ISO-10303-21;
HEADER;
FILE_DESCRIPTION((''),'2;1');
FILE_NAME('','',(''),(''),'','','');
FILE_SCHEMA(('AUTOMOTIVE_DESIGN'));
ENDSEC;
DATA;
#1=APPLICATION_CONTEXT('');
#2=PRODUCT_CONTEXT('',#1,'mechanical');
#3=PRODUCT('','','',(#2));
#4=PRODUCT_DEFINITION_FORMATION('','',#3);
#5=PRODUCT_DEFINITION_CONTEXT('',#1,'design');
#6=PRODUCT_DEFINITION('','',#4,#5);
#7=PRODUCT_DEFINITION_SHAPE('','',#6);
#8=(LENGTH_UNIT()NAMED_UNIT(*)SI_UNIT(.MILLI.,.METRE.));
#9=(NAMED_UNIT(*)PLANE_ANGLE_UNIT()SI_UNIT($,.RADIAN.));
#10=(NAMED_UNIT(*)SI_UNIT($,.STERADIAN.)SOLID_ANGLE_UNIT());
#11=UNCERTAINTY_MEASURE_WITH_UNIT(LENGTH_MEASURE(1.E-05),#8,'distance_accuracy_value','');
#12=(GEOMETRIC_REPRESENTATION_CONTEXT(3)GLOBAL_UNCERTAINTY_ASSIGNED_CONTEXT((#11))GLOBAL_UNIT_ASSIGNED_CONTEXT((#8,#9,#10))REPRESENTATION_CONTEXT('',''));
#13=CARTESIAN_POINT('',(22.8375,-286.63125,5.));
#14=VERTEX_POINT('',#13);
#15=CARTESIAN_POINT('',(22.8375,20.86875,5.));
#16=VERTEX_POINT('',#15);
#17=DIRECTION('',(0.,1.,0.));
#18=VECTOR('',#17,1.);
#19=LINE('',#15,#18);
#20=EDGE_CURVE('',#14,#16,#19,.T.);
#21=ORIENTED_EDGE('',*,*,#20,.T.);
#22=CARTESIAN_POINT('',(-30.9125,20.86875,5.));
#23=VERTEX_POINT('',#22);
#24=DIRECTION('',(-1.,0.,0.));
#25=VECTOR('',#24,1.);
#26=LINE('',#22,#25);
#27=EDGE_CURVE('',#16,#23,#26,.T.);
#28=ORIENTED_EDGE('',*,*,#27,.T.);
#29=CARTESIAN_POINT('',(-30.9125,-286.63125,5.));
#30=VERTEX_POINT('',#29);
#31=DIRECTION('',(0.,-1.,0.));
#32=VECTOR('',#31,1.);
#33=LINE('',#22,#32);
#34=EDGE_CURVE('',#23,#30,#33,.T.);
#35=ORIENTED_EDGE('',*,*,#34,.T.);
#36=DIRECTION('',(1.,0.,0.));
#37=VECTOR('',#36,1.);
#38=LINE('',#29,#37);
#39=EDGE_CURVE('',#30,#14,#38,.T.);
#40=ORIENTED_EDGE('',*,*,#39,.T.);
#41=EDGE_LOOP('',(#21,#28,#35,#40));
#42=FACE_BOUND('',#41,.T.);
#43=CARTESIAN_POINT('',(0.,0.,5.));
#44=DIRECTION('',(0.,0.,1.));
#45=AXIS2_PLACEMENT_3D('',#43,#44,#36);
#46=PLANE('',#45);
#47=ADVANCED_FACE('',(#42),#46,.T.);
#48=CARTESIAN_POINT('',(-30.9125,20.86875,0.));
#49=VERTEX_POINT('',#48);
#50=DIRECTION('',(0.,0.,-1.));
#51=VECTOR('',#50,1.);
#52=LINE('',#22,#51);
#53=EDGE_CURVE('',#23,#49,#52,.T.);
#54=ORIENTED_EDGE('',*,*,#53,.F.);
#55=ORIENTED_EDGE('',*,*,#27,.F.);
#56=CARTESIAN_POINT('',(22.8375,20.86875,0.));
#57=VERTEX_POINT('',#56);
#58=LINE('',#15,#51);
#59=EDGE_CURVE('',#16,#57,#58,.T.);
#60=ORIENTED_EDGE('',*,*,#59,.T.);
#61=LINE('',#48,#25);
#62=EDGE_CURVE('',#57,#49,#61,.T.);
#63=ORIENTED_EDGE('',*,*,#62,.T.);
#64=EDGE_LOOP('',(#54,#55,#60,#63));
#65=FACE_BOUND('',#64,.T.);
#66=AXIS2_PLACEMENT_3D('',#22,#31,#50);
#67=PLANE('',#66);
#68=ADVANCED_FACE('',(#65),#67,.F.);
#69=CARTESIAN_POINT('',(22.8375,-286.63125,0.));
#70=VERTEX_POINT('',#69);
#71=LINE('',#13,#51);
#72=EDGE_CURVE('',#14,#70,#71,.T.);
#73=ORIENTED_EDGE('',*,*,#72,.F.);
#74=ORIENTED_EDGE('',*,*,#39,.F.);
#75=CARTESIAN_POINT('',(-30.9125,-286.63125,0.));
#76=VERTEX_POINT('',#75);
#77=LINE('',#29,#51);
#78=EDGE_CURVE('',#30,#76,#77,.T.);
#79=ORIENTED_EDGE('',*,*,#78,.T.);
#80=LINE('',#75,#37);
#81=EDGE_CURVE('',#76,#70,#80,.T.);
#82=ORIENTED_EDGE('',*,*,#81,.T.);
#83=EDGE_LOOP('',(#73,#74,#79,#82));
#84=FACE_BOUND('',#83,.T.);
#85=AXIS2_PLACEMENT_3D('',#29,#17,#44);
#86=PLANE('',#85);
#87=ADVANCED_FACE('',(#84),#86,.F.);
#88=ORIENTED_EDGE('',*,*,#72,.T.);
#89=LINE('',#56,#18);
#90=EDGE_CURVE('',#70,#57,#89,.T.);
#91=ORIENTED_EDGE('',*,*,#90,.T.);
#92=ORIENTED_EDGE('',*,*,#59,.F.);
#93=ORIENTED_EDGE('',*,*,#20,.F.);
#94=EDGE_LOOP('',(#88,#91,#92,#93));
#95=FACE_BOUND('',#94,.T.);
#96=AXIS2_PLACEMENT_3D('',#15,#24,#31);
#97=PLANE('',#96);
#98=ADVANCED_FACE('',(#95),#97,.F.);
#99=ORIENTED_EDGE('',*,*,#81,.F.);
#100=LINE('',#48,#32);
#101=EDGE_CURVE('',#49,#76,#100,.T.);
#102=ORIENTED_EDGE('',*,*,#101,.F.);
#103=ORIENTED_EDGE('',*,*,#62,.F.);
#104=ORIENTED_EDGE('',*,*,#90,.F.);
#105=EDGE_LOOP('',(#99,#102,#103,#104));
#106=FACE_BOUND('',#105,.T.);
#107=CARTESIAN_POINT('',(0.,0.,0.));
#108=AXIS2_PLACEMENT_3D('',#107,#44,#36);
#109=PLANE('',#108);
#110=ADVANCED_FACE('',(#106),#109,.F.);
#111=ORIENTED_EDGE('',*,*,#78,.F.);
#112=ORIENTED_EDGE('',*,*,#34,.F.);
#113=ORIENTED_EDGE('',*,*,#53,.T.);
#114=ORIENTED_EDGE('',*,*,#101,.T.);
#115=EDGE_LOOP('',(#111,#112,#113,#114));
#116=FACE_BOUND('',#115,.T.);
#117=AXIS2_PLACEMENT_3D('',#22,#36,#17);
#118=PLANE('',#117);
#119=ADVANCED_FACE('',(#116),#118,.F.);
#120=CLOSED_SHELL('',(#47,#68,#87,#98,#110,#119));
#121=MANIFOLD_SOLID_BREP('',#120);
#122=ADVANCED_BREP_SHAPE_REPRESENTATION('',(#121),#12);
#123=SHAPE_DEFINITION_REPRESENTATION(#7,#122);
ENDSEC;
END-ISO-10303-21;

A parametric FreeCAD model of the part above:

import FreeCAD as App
import Part
import Sketcher
Q = App.Units.Quantity


def add_polygon(sketch, points):
    """Adds a closed chain of lines whose ends are joined by coincident constraints."""
    first, n = sketch.GeometryCount, len(points)
    for a, b in zip(points, points[1:] + points[:1]):
        sketch.addGeometry(Part.LineSegment(App.Vector(*a, 0), App.Vector(*b, 0)), False)
    for i in range(n):
        sketch.addConstraint(Sketcher.Constraint("Coincident", first + i, 2, first + (i + 1) % n, 1))

doc = App.newDocument("Part")
body = doc.addObject("PartDesign::Body", "Body")

# Sketch on XY plane
sketch1 = doc.addObject("Sketcher::SketchObject", "Sketch")
body.addObject(sketch1)
sketch1.AttachmentSupport = (doc.XY_Plane, [""])
sketch1.MapMode = "FlatFace"
add_polygon(sketch1, [(-30.9125, 20.86875), (-30.9125, -286.63125), (22.8375, -286.63125), (22.8375, 20.86875)])  # lines 0-3
sketch1.addConstraint([
    Sketcher.Constraint("Vertical", 0),
    Sketcher.Constraint("Horizontal", 1),
    Sketcher.Constraint("Vertical", 2),
    Sketcher.Constraint("Horizontal", 3),
    Sketcher.Constraint("DistanceY", 0, 2, 0, 1, Q("307.5 mm")),
    Sketcher.Constraint("DistanceX", 1, 1, 1, 2, Q("53.75 mm")),
    Sketcher.Constraint("DistanceX", 0, 2, -1, 1, Q("30.9125 mm")),
    Sketcher.Constraint("DistanceY", 0, 2, -1, 1, Q("286.63125 mm")),
])
pad1 = doc.addObject("PartDesign::Pad", "Pad")
body.addObject(pad1)
pad1.Profile = sketch1
pad1.Length = 5

doc.recompute()
